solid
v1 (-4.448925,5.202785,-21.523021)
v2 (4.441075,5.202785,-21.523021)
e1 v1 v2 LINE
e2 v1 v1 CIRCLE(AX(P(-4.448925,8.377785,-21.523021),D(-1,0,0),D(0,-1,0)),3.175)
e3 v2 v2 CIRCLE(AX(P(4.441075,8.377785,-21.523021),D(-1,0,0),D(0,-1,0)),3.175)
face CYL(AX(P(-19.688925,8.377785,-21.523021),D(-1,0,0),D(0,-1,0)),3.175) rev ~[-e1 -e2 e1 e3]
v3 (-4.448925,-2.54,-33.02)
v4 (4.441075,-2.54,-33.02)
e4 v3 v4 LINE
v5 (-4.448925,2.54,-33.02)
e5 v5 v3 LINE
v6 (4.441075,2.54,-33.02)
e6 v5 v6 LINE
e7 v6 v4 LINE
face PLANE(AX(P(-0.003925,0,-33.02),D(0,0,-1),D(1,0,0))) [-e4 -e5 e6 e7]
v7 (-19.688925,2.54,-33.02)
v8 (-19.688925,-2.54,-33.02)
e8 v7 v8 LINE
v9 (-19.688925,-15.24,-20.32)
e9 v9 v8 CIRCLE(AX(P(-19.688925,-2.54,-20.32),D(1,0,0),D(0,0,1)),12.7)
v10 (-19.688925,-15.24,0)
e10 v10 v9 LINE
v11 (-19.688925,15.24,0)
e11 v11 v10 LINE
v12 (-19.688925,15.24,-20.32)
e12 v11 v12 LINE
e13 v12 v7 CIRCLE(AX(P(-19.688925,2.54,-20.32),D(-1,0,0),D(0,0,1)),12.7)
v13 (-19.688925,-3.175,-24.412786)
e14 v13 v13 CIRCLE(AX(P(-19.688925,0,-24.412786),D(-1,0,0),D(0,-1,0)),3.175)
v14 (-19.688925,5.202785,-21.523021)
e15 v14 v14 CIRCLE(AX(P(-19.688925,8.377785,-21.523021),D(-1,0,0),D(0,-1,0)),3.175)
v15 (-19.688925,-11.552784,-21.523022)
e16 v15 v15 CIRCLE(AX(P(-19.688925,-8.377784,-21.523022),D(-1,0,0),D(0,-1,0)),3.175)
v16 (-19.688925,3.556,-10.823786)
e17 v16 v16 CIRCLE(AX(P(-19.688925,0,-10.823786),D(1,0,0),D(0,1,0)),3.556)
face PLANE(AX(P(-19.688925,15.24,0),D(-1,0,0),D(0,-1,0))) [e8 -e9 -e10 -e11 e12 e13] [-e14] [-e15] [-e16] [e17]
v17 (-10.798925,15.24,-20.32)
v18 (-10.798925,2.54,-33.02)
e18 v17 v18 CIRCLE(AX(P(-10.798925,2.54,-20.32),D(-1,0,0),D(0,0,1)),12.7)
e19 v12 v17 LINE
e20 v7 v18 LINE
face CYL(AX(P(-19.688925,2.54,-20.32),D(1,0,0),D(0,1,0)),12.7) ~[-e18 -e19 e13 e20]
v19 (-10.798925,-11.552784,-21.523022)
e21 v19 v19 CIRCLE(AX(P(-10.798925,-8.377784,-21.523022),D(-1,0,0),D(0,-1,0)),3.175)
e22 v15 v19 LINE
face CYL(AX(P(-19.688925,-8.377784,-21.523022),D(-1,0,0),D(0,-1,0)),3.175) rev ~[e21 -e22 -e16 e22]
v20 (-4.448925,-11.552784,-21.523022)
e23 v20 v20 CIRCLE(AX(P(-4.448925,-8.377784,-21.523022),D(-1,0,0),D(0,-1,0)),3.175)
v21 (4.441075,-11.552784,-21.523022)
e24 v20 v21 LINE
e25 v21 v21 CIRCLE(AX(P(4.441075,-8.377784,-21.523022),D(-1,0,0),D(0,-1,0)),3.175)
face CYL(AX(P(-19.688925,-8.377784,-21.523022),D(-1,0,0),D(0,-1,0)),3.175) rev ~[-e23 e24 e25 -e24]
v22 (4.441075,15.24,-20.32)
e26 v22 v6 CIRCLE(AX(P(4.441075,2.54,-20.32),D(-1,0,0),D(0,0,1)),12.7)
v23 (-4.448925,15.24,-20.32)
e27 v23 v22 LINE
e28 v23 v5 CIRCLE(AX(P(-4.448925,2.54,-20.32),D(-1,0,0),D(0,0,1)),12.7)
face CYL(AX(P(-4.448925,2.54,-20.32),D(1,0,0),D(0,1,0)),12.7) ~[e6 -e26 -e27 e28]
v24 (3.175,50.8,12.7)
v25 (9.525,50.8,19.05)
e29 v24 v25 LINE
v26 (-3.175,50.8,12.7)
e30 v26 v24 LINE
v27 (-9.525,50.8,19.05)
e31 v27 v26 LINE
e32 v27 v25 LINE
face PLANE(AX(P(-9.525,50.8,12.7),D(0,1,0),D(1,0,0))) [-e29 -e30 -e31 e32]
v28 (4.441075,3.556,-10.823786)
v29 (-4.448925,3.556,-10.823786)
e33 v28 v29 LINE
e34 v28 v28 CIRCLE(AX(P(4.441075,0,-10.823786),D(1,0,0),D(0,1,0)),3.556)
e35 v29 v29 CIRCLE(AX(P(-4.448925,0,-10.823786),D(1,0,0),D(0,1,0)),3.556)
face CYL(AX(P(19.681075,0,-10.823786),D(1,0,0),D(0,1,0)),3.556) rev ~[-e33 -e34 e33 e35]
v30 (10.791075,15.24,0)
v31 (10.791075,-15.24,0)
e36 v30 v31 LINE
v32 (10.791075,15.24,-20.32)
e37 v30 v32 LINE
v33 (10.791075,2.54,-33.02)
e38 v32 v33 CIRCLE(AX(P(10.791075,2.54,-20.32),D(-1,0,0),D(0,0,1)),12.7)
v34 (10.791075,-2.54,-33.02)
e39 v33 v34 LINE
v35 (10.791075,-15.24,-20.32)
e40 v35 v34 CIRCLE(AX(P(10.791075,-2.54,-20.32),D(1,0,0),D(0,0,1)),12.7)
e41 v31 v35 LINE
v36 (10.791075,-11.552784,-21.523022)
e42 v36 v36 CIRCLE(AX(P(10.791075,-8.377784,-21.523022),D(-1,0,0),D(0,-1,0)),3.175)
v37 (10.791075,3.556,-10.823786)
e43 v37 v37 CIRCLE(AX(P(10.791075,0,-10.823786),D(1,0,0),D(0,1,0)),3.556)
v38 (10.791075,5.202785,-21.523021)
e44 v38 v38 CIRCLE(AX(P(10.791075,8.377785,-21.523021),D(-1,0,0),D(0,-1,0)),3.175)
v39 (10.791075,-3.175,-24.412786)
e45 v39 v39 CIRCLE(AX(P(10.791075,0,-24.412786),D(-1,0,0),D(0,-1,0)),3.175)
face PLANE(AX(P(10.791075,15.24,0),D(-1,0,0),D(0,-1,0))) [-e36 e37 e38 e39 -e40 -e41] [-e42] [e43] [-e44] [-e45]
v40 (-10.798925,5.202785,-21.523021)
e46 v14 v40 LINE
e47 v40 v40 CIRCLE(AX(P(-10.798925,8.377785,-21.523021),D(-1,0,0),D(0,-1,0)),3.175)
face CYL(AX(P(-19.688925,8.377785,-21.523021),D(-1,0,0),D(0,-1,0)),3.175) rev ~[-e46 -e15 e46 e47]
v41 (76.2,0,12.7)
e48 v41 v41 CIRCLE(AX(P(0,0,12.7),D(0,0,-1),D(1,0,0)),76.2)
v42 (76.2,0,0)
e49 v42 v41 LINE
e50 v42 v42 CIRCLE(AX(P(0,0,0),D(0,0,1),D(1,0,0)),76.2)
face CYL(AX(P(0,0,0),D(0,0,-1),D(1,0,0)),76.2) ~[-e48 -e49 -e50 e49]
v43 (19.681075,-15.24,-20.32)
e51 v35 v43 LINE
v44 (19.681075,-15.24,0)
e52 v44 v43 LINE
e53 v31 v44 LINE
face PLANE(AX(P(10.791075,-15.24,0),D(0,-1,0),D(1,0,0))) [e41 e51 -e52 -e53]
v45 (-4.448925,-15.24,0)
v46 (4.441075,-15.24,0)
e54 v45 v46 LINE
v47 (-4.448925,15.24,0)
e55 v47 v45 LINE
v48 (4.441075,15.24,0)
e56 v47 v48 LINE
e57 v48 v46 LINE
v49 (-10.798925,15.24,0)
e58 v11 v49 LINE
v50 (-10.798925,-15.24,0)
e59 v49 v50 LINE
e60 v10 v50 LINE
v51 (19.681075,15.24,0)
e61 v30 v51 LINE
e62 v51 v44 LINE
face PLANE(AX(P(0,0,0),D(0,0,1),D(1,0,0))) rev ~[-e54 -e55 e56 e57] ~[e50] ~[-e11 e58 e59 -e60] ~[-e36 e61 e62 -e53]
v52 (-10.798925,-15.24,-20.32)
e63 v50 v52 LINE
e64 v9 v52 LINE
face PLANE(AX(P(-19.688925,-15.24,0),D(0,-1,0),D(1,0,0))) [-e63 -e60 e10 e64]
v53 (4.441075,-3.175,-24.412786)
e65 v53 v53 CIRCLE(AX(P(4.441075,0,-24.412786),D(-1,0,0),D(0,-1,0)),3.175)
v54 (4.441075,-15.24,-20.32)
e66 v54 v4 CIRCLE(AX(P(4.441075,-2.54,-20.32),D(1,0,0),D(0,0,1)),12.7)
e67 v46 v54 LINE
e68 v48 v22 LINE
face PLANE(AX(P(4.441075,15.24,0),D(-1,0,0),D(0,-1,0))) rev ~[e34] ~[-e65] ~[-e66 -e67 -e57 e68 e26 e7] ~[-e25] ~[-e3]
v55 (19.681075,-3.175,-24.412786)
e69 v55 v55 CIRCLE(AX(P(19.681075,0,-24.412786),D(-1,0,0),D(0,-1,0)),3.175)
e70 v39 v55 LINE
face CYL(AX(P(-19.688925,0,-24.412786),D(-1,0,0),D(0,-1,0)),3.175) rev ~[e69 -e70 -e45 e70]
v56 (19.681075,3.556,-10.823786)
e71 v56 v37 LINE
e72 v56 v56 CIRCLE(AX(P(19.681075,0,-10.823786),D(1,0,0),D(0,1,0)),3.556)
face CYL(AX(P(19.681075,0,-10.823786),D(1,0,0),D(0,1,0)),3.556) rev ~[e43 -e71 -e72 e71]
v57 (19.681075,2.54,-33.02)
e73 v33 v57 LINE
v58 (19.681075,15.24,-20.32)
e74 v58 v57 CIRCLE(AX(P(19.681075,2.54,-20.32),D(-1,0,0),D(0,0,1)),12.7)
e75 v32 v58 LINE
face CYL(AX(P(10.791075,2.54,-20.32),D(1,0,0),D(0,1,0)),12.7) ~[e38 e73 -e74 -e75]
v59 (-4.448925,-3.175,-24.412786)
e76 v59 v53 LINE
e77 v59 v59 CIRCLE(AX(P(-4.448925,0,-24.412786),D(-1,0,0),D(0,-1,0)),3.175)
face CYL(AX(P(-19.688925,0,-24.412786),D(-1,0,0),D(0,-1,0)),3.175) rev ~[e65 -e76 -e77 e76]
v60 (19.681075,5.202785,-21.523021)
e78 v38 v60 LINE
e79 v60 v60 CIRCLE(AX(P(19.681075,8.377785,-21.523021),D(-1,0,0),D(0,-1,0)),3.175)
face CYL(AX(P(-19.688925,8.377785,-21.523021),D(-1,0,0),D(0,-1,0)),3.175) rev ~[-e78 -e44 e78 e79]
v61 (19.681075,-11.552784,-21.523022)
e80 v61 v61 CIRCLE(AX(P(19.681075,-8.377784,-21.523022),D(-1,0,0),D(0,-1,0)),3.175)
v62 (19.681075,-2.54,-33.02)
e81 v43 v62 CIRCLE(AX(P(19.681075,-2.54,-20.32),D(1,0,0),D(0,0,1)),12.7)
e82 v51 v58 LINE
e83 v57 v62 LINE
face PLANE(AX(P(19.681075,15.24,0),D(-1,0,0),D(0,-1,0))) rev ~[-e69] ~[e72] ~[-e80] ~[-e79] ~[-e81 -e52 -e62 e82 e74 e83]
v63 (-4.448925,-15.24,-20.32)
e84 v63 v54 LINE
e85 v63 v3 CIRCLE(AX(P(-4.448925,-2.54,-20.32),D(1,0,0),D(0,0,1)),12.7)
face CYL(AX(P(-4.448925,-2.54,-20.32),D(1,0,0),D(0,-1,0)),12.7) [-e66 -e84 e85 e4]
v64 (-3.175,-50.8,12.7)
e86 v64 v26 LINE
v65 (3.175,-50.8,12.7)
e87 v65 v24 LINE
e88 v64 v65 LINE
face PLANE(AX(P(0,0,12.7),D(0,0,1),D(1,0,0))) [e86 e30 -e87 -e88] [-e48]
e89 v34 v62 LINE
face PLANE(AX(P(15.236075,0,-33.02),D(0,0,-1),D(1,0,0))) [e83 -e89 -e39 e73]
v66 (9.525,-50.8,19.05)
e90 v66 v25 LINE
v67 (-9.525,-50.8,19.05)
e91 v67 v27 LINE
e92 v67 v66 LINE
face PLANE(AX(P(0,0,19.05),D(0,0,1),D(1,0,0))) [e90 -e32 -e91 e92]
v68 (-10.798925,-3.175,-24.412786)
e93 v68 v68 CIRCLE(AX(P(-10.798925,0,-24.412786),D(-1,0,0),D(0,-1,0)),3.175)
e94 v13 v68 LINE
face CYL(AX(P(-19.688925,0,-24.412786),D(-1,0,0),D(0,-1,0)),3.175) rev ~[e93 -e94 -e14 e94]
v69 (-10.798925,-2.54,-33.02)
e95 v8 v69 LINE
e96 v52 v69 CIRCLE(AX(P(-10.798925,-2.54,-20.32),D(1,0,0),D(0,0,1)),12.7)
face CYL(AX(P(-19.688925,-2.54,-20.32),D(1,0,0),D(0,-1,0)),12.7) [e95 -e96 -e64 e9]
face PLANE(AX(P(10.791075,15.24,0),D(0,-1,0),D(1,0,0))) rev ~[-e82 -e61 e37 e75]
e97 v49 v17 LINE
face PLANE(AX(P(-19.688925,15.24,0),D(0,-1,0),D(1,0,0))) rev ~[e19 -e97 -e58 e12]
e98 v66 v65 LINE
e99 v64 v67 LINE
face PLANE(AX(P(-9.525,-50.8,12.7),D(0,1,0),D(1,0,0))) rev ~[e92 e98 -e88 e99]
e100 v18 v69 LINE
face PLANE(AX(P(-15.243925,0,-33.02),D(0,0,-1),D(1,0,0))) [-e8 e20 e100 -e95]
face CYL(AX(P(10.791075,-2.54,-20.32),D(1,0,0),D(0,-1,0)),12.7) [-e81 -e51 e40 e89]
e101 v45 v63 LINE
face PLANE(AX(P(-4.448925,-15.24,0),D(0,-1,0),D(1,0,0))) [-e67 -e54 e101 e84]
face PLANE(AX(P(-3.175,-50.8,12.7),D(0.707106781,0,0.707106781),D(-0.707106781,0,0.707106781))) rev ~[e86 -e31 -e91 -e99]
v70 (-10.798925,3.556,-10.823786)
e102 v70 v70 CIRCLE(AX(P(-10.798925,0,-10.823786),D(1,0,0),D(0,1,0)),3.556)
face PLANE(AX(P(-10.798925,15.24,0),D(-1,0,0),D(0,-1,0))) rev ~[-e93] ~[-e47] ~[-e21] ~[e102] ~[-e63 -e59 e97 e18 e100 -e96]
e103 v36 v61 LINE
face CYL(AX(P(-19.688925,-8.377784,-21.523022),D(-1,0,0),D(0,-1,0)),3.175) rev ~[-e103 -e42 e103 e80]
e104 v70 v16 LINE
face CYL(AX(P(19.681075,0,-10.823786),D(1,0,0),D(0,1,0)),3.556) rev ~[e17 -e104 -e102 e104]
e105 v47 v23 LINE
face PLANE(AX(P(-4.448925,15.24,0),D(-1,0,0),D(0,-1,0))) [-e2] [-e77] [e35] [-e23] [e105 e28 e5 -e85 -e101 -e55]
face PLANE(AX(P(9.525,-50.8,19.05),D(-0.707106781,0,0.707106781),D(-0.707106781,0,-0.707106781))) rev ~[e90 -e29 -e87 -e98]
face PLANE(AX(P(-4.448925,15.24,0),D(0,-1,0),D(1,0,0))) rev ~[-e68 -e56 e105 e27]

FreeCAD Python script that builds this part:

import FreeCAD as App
import Part
import Sketcher

V = App.Vector
Q = App.Units.Quantity


def edges_at(feature, points):
    """Names of the edges that pass closest to the given points."""
    edges = feature.Shape.Edges
    near = lambda p: min(range(len(edges)), key=lambda i: edges[i].distToShape(Part.Vertex(*p))[0])
    return sorted({f"Edge{near(p) + 1}" for p in points})


def add_polygon(sketch, points):
    """Adds a closed chain of lines whose ends are joined by coincident constraints."""
    first, n = sketch.GeometryCount, len(points)
    for a, b in zip(points, points[1:] + points[:1]):
        sketch.addGeometry(Part.LineSegment(App.Vector(*a, 0), App.Vector(*b, 0)), False)
    for i in range(n):
        sketch.addConstraint(Sketcher.Constraint("Coincident", first + i, 2, first + (i + 1) % n, 1))

doc = App.newDocument("Part")
params = doc.addObject("Spreadsheet::Sheet", "Params")
for row, (alias, value) in enumerate([
    ("sketch1_diameter", "6 in"),
    ("pad1_length", "0.5 in"),
    ("sketch2_height", "4 in"),
    ("sketch2_width", "0.75 in"),
    ("pad2_length", "0.25 in"),
    ("sketch3_width", "0.25 in"),
    ("sketch4_height", "1.2 in"),
    ("sketch4_width", "0.35 in"),
    ("pad3_length", "1.3 in"),
    ("fillet_radius", "0.5 in"),
    ("sketch5_diameter", "0.28 in"),
    ("sketch6_diameter", "0.25 in"),
], start=1):
    params.set(f"A{row}", alias)
    params.set(f"B{row}", "=" + value)
    params.setAlias(f"B{row}", alias)

body = doc.addObject("PartDesign::Body", "Body")

# Sketch on XY plane
sketch1 = body.newObject("Sketcher::SketchObject", "Sketch")
sketch1.AttachmentSupport = (doc.getObject("XY_Plane"), [""])
sketch1.MapMode = "FlatFace"
sketch1.addGeometry(Part.Circle(V(0, 0, 0), V(0, 0, 1), 76), False)
sketch1.addConstraint(Sketcher.Constraint("Coincident", 0, 3, -1, 1))
sketch1.addConstraint(Sketcher.Constraint("Diameter", 0, Q("6 in")))
sketch1.setExpression("Constraints[1]", "Params.sketch1_diameter")
pad1 = body.newObject("PartDesign::Pad", "Pad")
pad1.Profile = sketch1
pad1.setExpression("Length", "Params.pad1_length")

# Sketch on XY plane
sketch2 = body.newObject("Sketcher::SketchObject", "Sketch001")
sketch2.AttachmentSupport = (doc.getObject("XY_Plane"), [""])
sketch2.MapMode = "FlatFace"
sketch2.AttachmentOffset = App.Placement(V(0, 0, 0.5 * 25.4), App.Rotation())
add_polygon(sketch2, [(-10, 51), (-10, -51), (10, -51), (10, 51)])  # lines 0-3
sketch2.addConstraint(Sketcher.Constraint("Vertical", 0))
sketch2.addConstraint(Sketcher.Constraint("Horizontal", 1))
sketch2.addConstraint(Sketcher.Constraint("Vertical", 2))
sketch2.addConstraint(Sketcher.Constraint("Horizontal", 3))
sketch2.addConstraint(Sketcher.Constraint("Symmetric", 0, 2, 2, 2, -1, 1))
sketch2.addConstraint(Sketcher.Constraint("DistanceY", 0, 2, 0, 1, Q("4 in")))
sketch2.addConstraint(Sketcher.Constraint("DistanceX", 1, 1, 1, 2, Q("0.75 in")))
sketch2.setExpression("Constraints[9]", "Params.sketch2_height")
sketch2.setExpression("Constraints[10]", "Params.sketch2_width")
pad2 = body.newObject("PartDesign::Pad", "Pad001")
pad2.Profile = sketch2
pad2.setExpression("Length", "Params.pad2_length")

# Sketch on XZ plane
sketch3 = body.newObject("Sketcher::SketchObject", "Sketch002")
sketch3.AttachmentSupport = (doc.getObject("XZ_Plane"), [""])
sketch3.MapMode = "FlatFace"
sketch3.AttachmentOffset = App.Placement(V(0, 0, 2 * 25.4), App.Rotation())
add_polygon(sketch3, [(-3, 13), (-10, 19), (-10, 13)])  # lines 0-2
add_polygon(sketch3, [(10, 13), (10, 19), (3, 13)])  # lines 3-5
sketch3.addConstraint(Sketcher.Constraint("Vertical", 1))
sketch3.addConstraint(Sketcher.Constraint("Horizontal", 2))
sketch3.addConstraint(Sketcher.Constraint("Vertical", 3))
sketch3.addConstraint(Sketcher.Constraint("Horizontal", 5))
sketch3.addConstraint(Sketcher.Constraint("Symmetric", 0, 2, 3, 2, -2))
sketch3.addConstraint(Sketcher.Constraint("Symmetric", 2, 2, 4, 2, -2))
sketch3.addConstraint(Sketcher.Constraint("Perpendicular", 0, 4))
sketch3.addConstraint(Sketcher.Constraint("DistanceX", 2, 1, 2, 2, Q("0.25 in")))
sketch3.addConstraint(Sketcher.Constraint("DistanceY", -1, 1, 1, 2, Q("0.5 in")))
sketch3.addConstraint(Sketcher.Constraint("DistanceX", 2, 2, 3, 2, Q("0.5 in")))
sketch3.setExpression("Constraints[13]", "Params.sketch3_width")
pocket1 = body.newObject("PartDesign::Pocket", "Pocket")
pocket1.Profile = sketch3
pocket1.Type = "ThroughAll"

# Sketch on XY plane
sketch4 = body.newObject("Sketcher::SketchObject", "Sketch003")
sketch4.AttachmentSupport = (doc.getObject("XY_Plane"), [""])
sketch4.MapMode = "FlatFace"
add_polygon(sketch4, [(11, -15), (11, 15), (20, 15), (20, -15)])  # lines 0-3
add_polygon(sketch4, [(-4, -15), (-4, 15), (4, 15), (4, -15)])  # lines 4-7
add_polygon(sketch4, [(-20, -15), (-20, 15), (-11, 15), (-11, -15)])  # lines 8-11
sketch4.addConstraint(Sketcher.Constraint("Vertical", 0))
sketch4.addConstraint(Sketcher.Constraint("Horizontal", 1))
sketch4.addConstraint(Sketcher.Constraint("Vertical", 2))
sketch4.addConstraint(Sketcher.Constraint("Horizontal", 3))
sketch4.addConstraint(Sketcher.Constraint("Vertical", 4))
sketch4.addConstraint(Sketcher.Constraint("Horizontal", 5))
sketch4.addConstraint(Sketcher.Constraint("Vertical", 6))
sketch4.addConstraint(Sketcher.Constraint("Horizontal", 7))
sketch4.addConstraint(Sketcher.Constraint("Vertical", 8))
sketch4.addConstraint(Sketcher.Constraint("Horizontal", 9))
sketch4.addConstraint(Sketcher.Constraint("Vertical", 10))
sketch4.addConstraint(Sketcher.Constraint("Horizontal", 11))
sketch4.addConstraint(Sketcher.Constraint("Horizontal", 1, 2, 4, 2))
sketch4.addConstraint(Sketcher.Constraint("Horizontal", 3, 2, 6, 2))
sketch4.addConstraint(Sketcher.Constraint("Horizontal", 5, 2, 8, 2))
sketch4.addConstraint(Sketcher.Constraint("Horizontal", 7, 2, 10, 2))
sketch4.addConstraint(Sketcher.Constraint("Equal", 3, 5))
sketch4.addConstraint(Sketcher.Constraint("Equal", 7, 9))
sketch4.addConstraint(Sketcher.Constraint("DistanceY", 0, 1, 0, 2, Q("1.2 in")))
sketch4.addConstraint(Sketcher.Constraint("DistanceX", 1, 1, 1, 2, Q("0.35 in")))
sketch4.addConstraint(Sketcher.Constraint("DistanceY", -1, 1, 0, 2, Q("0.6 in")))
sketch4.addConstraint(Sketcher.Constraint("DistanceX", 4, 2, 0, 2, Q("0.6 in")))
sketch4.addConstraint(Sketcher.Constraint("DistanceX", 8, 2, 4, 2, Q("0.6 in")))
sketch4.addConstraint(Sketcher.Constraint("DistanceX", -1, 1, 0, 2, 10.791075))
sketch4.setExpression("Constraints[30]", "Params.sketch4_height")
sketch4.setExpression("Constraints[31]", "Params.sketch4_width")
pad3 = body.newObject("PartDesign::Pad", "Pad002")
pad3.Profile = sketch4
pad3.setExpression("Length", "Params.pad3_length")
pad3.Reversed = True
doc.recompute()

fillet = body.newObject("PartDesign::Fillet", "Fillet")
fillet.Base = (pad3, edges_at(pad3, [
    (-15.244, -15.24, -33.02),
    (-15.244, 15.24, -33.02),
    (-0.004, -15.24, -33.02),
    (-0.004, 15.24, -33.02),
    (15.236, 15.24, -33.02),
    (15.236, -15.24, -33.02),
]))
fillet.setExpression("Radius", "Params.fillet_radius")

# Sketch on YZ plane
sketch5 = body.newObject("Sketcher::SketchObject", "Sketch004")
sketch5.AttachmentSupport = (doc.getObject("YZ_Plane"), [""])
sketch5.MapMode = "FlatFace"
sketch5.AttachmentOffset = App.Placement(V(0, 0, 19.681075), App.Rotation())
sketch5.addGeometry(Part.Circle(V(0, -10.8, 0), V(0, 0, 1), 3.6), False)
sketch5.addConstraint(Sketcher.Constraint("PointOnObject", 0, 3, -2))
sketch5.addConstraint(Sketcher.Constraint("Diameter", 0, Q("0.28 in")))
sketch5.addConstraint(Sketcher.Constraint("DistanceY", 0, 3, -1, 1, 10.823786))
sketch5.setExpression("Constraints[1]", "Params.sketch5_diameter")
pocket2 = body.newObject("PartDesign::Pocket", "Pocket001")
pocket2.Profile = sketch5
pocket2.Type = "ThroughAll"

# Sketch on YZ plane
sketch6 = body.newObject("Sketcher::SketchObject", "Sketch005")
sketch6.AttachmentSupport = (doc.getObject("YZ_Plane"), [""])
sketch6.MapMode = "FlatFace"
sketch6.AttachmentOffset = App.Placement(V(0, 0, -19.688925), App.Rotation())
sketch6.addGeometry(Part.Circle(V(8.4, -21.5, 0), V(0, 0, 1), 3.2), False)
sketch6.addGeometry(Part.Circle(V(0, -24.4, 0), V(0, 0, 1), 3.2), False)
sketch6.addGeometry(Part.Circle(V(-8.4, -21.5, 0), V(0, 0, 1), 3.2), False)
sketch6.addConstraint(Sketcher.Constraint("Equal", 0, 1))
sketch6.addConstraint(Sketcher.Constraint("Equal", 1, 2))
sketch6.addConstraint(Sketcher.Constraint("Symmetric", 0, 3, 2, 3, -2))
sketch6.addConstraint(Sketcher.Constraint("PointOnObject", 1, 3, -2))
sketch6.addConstraint(Sketcher.Constraint("Diameter", 0, Q("0.25 in")))
sketch6.addConstraint(Sketcher.Constraint("DistanceY", 0, 3, -1, 1, 21.523021))
sketch6.addConstraint(Sketcher.Constraint("DistanceX", 2, 3, 0, 3, 16.755569))
sketch6.addConstraint(Sketcher.Constraint("DistanceY", 1, 3, -1, 1, 24.412786))
sketch6.setExpression("Constraints[4]", "Params.sketch6_diameter")
pocket3 = body.newObject("PartDesign::Pocket", "Pocket002")
pocket3.Profile = sketch6
pocket3.Type = "ThroughAll"
pocket3.Reversed = True

doc.recompute()
